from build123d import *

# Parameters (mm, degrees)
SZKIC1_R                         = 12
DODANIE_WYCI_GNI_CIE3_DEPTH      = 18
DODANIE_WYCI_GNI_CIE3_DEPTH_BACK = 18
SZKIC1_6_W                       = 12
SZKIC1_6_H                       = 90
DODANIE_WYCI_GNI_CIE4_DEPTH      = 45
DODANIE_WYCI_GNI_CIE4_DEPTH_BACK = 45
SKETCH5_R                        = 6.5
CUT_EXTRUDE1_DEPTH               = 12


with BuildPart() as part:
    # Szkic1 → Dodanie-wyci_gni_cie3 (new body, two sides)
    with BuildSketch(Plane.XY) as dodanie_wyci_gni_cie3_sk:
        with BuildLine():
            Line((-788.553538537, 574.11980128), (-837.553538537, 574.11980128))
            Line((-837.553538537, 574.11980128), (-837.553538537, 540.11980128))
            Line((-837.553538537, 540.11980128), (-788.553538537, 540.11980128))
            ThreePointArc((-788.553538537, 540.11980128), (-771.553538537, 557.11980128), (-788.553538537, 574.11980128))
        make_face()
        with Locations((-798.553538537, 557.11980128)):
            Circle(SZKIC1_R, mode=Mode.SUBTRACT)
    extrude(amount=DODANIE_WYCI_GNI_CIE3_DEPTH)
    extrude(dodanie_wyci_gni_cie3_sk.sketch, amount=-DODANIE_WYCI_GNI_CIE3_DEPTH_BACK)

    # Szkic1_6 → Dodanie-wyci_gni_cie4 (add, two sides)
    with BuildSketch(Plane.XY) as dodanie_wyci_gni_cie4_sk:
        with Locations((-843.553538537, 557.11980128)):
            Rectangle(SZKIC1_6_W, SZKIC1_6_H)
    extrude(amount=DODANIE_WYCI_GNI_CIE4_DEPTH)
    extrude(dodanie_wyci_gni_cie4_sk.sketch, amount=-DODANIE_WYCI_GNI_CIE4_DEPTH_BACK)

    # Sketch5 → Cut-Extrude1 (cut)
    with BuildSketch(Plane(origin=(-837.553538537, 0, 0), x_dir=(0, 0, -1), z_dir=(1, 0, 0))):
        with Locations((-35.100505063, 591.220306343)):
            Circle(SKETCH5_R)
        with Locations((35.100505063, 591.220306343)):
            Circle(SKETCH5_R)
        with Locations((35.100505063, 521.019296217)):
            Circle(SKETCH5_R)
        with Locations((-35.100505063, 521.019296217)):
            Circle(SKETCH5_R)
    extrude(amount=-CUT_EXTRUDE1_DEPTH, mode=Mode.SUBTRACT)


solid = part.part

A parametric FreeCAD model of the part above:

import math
import FreeCAD as App
import Part
import Sketcher
from FreeCAD import Vector
Q = App.Units.Quantity


def add_polygon(sketch, points):
    """Adds a closed chain of lines whose ends are joined by coincident constraints."""
    first, n = sketch.GeometryCount, len(points)
    for a, b in zip(points, points[1:] + points[:1]):
        sketch.addGeometry(Part.LineSegment(App.Vector(*a, 0), App.Vector(*b, 0)), False)
    for i in range(n):
        sketch.addConstraint(Sketcher.Constraint("Coincident", first + i, 2, first + (i + 1) % n, 1))

doc = App.newDocument("Part")
body = doc.addObject("PartDesign::Body", "Body")

# Sketch on XY plane
sketch1 = doc.addObject("Sketcher::SketchObject", "Sketch")
body.addObject(sketch1)
sketch1.AttachmentSupport = (doc.XY_Plane, [""])
sketch1.MapMode = "FlatFace"
sketch1.addGeometry(Part.LineSegment(Vector(-789, 574, 0), Vector(-838, 574, 0)), False)
sketch1.addGeometry(Part.LineSegment(Vector(-838, 574, 0), Vector(-838, 540, 0)), False)
sketch1.addGeometry(Part.LineSegment(Vector(-838, 540, 0), Vector(-789, 540, 0)), False)
sketch1.addGeometry(Part.ArcOfCircle(Part.Circle(Vector(-789, 557, 0), Vector(0, 0, 1), 17), math.radians(-90), math.radians(90)), False)
sketch1.addGeometry(Part.Circle(Vector(-799, 557, 0), Vector(0, 0, 1), 12), False)
sketch1.addConstraint(Sketcher.Constraint("Coincident", 0, 2, 1, 1))
sketch1.addConstraint(Sketcher.Constraint("Coincident", 1, 2, 2, 1))
sketch1.addConstraint(Sketcher.Constraint("Tangent", 2, 2, 3, 1))
sketch1.addConstraint(Sketcher.Constraint("Tangent", 3, 2, 0, 1))
sketch1.addConstraint(Sketcher.Constraint("Horizontal", 0))
sketch1.addConstraint(Sketcher.Constraint("Vertical", 1))
sketch1.addConstraint(Sketcher.Constraint("Horizontal", 2))
sketch1.addConstraint(Sketcher.Constraint("Horizontal", 3, 3, 4, 3))
sketch1.addConstraint(Sketcher.Constraint("Diameter", 4, Q("24 mm")))
sketch1.addConstraint(Sketcher.Constraint("Radius", 3, Q("17 mm")))
sketch1.addConstraint(Sketcher.Constraint("DistanceX", 0, 2, 0, 1, Q("49 mm")))
sketch1.addConstraint(Sketcher.Constraint("DistanceX", 4, 3, 3, 3, Q("10 mm")))
sketch1.addConstraint(Sketcher.Constraint("DistanceY", -1, 1, 3, 3, Q("557.119801 mm")))
sketch1.addConstraint(Sketcher.Constraint("DistanceX", 3, 3, -1, 1, Q("788.553539 mm")))
pad1 = doc.addObject("PartDesign::Pad", "Pad")
body.addObject(pad1)
pad1.Profile = sketch1
pad1.Type = "TwoLengths"
pad1.Length = 18
pad1.Length2 = 18

# Sketch on XY plane
sketch2 = doc.addObject("Sketcher::SketchObject", "Sketch001")
body.addObject(sketch2)
sketch2.AttachmentSupport = (doc.XY_Plane, [""])
sketch2.MapMode = "FlatFace"
add_polygon(sketch2, [(-850, 602), (-850, 512), (-838, 512), (-838, 602)])  # lines 0-3
sketch2.addConstraint(Sketcher.Constraint("Vertical", 0))
sketch2.addConstraint(Sketcher.Constraint("Horizontal", 1))
sketch2.addConstraint(Sketcher.Constraint("Vertical", 2))
sketch2.addConstraint(Sketcher.Constraint("Horizontal", 3))
sketch2.addConstraint(Sketcher.Constraint("DistanceX", 1, 1, 1, 2, Q("12 mm")))
sketch2.addConstraint(Sketcher.Constraint("DistanceY", 0, 2, 0, 1, Q("90 mm")))
sketch2.addConstraint(Sketcher.Constraint("DistanceY", -1, 1, 0, 2, Q("512.119801 mm")))
sketch2.addConstraint(Sketcher.Constraint("DistanceX", 0, 2, -1, 1, Q("849.553539 mm")))
pad2 = doc.addObject("PartDesign::Pad", "Pad001")
body.addObject(pad2)
pad2.Profile = sketch2
pad2.Type = "TwoLengths"
pad2.Length = 45
pad2.Length2 = 45

# Sketch on YZ plane
sketch3 = doc.addObject("Sketcher::SketchObject", "Sketch002")
body.addObject(sketch3)
sketch3.AttachmentSupport = (doc.YZ_Plane, [""])
sketch3.MapMode = "FlatFace"
sketch3.AttachmentOffset = App.Placement(Vector(0, 0, -837.553539), App.Rotation())
sketch3.addGeometry(Part.Circle(Vector(591, 35, 0), Vector(0, 0, 1), 6), False)
sketch3.addGeometry(Part.Circle(Vector(591, -35, 0), Vector(0, 0, 1), 6), False)
sketch3.addGeometry(Part.Circle(Vector(521, -35, 0), Vector(0, 0, 1), 6), False)
sketch3.addGeometry(Part.Circle(Vector(521, 35, 0), Vector(0, 0, 1), 6), False)
sketch3.addConstraint(Sketcher.Constraint("Equal", 0, 1))
sketch3.addConstraint(Sketcher.Constraint("Equal", 1, 2))
sketch3.addConstraint(Sketcher.Constraint("Equal", 2, 3))
sketch3.addConstraint(Sketcher.Constraint("Symmetric", 0, 3, 1, 3, -1))
sketch3.addConstraint(Sketcher.Constraint("Symmetric", 2, 3, 3, 3, -1))
sketch3.addConstraint(Sketcher.Constraint("Horizontal", 1, 3, 2, 3))
sketch3.addConstraint(Sketcher.Constraint("Diameter", 0, Q("13 mm")))
sketch3.addConstraint(Sketcher.Constraint("DistanceY", 1, 3, 0, 3, Q("70.20101 mm")))
sketch3.addConstraint(Sketcher.Constraint("DistanceX", 2, 3, 1, 3, Q("70.20101 mm")))
sketch3.addConstraint(Sketcher.Constraint("DistanceX", -1, 1, 0, 3, Q("591.220306 mm")))
pocket1 = doc.addObject("PartDesign::Pocket", "Pocket")
body.addObject(pocket1)
pocket1.Profile = sketch3
pocket1.Length = 12

doc.recompute()
